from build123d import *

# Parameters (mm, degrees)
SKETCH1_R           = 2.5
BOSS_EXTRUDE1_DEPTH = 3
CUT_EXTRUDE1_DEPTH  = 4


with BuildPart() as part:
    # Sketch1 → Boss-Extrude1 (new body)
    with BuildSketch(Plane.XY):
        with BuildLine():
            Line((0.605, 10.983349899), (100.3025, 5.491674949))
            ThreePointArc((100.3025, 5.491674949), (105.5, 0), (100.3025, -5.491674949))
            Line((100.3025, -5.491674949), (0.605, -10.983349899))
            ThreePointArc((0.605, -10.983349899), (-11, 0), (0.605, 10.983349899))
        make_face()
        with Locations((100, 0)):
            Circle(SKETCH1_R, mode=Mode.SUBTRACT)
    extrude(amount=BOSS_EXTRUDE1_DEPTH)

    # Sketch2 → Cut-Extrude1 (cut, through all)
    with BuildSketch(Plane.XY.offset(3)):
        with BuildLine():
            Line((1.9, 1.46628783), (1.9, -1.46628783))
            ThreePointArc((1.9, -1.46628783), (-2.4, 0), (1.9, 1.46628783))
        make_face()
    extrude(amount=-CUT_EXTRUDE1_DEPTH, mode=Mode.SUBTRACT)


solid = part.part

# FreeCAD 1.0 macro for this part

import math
import FreeCAD as App
import Part
import Sketcher

doc = App.newDocument("Part")
body = doc.addObject("PartDesign::Body", "Body")

sketch1 = body.newObject("Sketcher::SketchObject", "Sketch")
sketch1.AttachmentSupport = (doc.getObject("XY_Plane"), [""])
sketch1.MapMode = "FlatFace"
sketch1.addGeometry([
    Part.LineSegment(App.Vector(100.3, 5.5, 0), App.Vector(0.6, 11, 0)),
    Part.ArcOfCircle(Part.Circle(App.Vector(0, 0, 0), App.Vector(0, 0, 1), 11), math.radians(87), math.radians(273)),
    Part.LineSegment(App.Vector(0.6, -11, 0), App.Vector(100.3, -5.5, 0)),
    Part.ArcOfCircle(Part.Circle(App.Vector(100, 0, 0), App.Vector(0, 0, 1), 5.5), math.radians(-87), math.radians(87)),
    Part.Circle(App.Vector(100, 0, 0), App.Vector(0, 0, 1), 2.5),
], False)
sketch1.addConstraint([
    Sketcher.Constraint("Tangent", 0, 2, 1, 1),
    Sketcher.Constraint("Tangent", 1, 2, 2, 1),
    Sketcher.Constraint("Tangent", 2, 2, 3, 1),
    Sketcher.Constraint("Tangent", 3, 2, 0, 1),
    Sketcher.Constraint("Coincident", 1, 3, -1, 1),
    Sketcher.Constraint("Coincident", 4, 3, 3, 3),
    Sketcher.Constraint("PointOnObject", 3, 3, -1),
    Sketcher.Constraint("Diameter", 4, 5.0),
    Sketcher.Constraint("Radius", 1, 11.0),
    Sketcher.Constraint("Radius", 3, 5.5),
    Sketcher.Constraint("DistanceX", -1, 1, 3, 3, 100.0),
])
pad1 = body.newObject("PartDesign::Pad", "Pad")
pad1.Profile = sketch1
pad1.Length = 3

sketch2 = body.newObject("Sketcher::SketchObject", "Sketch001")
sketch2.AttachmentSupport = (doc.getObject("XY_Plane"), [""])
sketch2.MapMode = "FlatFace"
sketch2.AttachmentOffset = App.Placement(App.Vector(0, 0, 3), App.Rotation())
sketch2.addGeometry([
    Part.LineSegment(App.Vector(1.9, -1.5, 0), App.Vector(1.9, 1.5, 0)),
    Part.ArcOfCircle(Part.Circle(App.Vector(0, 0, 0), App.Vector(0, 0, 1), 2.4), math.radians(38), math.radians(322)),
], False)
sketch2.addConstraint([
    Sketcher.Constraint("Coincident", 0, 1, 1, 2),
    Sketcher.Constraint("Coincident", 1, 1, 0, 2),
    Sketcher.Constraint("Vertical", 0),
    Sketcher.Constraint("Coincident", 1, 3, -1, 1),
    Sketcher.Constraint("Radius", 1, 2.4),
    Sketcher.Constraint("DistanceX", -1, 1, 0, 1, 1.9),
])
pocket1 = body.newObject("PartDesign::Pocket", "Pocket")
pocket1.Profile = sketch2
pocket1.Type = "ThroughAll"

doc.recompute()
